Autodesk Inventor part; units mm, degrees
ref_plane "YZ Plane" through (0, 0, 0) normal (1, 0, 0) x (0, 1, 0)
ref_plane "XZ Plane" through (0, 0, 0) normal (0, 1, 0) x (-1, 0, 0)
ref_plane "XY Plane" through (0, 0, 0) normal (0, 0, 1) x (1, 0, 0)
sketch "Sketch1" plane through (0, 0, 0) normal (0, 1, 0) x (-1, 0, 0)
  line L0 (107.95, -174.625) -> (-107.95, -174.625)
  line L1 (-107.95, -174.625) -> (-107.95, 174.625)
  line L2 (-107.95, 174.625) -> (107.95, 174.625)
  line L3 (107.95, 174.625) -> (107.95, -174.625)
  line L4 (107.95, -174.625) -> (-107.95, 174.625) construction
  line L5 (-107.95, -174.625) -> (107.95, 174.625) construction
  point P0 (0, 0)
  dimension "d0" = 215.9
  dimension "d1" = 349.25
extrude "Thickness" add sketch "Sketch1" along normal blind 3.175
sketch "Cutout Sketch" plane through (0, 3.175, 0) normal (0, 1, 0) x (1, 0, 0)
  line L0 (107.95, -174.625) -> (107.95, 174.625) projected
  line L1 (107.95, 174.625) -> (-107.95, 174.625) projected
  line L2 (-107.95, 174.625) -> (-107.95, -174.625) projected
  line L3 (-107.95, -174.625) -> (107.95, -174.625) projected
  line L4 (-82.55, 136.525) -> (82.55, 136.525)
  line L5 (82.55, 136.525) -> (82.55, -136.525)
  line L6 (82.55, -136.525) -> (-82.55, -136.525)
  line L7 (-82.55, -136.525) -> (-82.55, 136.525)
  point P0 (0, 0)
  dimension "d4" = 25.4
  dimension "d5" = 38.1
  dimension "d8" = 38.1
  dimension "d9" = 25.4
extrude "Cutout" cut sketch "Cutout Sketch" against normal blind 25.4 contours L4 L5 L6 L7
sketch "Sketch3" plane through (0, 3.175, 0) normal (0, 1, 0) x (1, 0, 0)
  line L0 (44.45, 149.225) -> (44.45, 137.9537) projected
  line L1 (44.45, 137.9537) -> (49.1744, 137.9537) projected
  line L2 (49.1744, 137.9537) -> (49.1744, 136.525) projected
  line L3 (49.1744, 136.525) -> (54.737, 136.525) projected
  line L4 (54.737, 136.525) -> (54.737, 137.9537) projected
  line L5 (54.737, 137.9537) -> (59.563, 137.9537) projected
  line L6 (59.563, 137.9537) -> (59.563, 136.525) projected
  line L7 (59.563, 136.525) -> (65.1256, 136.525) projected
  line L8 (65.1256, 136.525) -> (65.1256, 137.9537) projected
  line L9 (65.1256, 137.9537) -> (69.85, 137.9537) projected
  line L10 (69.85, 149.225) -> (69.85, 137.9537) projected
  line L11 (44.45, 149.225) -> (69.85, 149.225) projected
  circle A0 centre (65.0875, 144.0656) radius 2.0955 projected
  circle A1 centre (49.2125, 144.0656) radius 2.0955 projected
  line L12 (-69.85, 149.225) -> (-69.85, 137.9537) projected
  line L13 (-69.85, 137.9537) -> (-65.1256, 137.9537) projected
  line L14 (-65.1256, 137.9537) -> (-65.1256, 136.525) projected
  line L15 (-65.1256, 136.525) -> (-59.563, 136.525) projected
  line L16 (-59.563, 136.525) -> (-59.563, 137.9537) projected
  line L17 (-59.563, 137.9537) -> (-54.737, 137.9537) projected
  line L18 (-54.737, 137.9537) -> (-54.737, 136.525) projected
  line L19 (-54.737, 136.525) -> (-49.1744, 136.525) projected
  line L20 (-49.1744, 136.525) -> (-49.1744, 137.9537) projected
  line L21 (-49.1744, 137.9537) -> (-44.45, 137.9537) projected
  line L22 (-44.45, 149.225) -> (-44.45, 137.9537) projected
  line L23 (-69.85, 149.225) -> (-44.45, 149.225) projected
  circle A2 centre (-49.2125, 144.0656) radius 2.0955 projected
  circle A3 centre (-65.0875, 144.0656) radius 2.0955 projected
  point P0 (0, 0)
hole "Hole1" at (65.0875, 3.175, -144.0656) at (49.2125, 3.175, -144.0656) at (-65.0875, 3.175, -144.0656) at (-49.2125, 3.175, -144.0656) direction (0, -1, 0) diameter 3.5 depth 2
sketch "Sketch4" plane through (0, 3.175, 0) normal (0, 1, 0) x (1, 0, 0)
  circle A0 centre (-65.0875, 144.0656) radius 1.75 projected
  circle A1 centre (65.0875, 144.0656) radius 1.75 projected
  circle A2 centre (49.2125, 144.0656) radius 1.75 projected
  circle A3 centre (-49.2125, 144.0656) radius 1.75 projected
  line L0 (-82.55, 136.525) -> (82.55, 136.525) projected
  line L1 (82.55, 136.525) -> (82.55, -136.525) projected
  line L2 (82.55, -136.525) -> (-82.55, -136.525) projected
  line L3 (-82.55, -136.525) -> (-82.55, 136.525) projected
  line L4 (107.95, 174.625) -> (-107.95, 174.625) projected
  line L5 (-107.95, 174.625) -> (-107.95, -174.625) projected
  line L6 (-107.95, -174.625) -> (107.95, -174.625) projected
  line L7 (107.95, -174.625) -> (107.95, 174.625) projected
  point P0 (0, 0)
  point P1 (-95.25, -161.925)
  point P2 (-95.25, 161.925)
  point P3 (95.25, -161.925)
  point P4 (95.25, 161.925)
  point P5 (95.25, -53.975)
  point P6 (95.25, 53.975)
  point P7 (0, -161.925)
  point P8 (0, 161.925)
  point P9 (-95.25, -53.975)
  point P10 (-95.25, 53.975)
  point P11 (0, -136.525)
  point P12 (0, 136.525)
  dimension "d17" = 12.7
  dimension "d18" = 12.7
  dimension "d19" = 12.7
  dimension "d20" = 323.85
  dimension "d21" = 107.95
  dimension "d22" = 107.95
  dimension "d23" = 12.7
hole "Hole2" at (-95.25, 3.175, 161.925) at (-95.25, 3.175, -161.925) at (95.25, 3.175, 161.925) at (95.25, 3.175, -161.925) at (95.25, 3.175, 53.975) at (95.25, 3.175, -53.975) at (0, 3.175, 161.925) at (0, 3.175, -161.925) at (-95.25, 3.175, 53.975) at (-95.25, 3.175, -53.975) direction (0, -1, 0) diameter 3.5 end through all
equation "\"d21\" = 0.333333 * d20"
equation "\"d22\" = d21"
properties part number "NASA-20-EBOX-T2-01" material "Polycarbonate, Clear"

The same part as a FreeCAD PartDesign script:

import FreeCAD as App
import Part
import Sketcher
Q = App.Units.Quantity


def add_polygon(sketch, points):
    """Adds a closed chain of lines whose ends are joined by coincident constraints."""
    first, n = sketch.GeometryCount, len(points)
    for a, b in zip(points, points[1:] + points[:1]):
        sketch.addGeometry(Part.LineSegment(App.Vector(*a, 0), App.Vector(*b, 0)), False)
    for i in range(n):
        sketch.addConstraint(Sketcher.Constraint("Coincident", first + i, 2, first + (i + 1) % n, 1))

doc = App.newDocument("Part")
params = doc.addObject("Spreadsheet::Sheet", "Params")
for row, (alias, value) in enumerate([
    ("sketch1_width", "8.5 in"),
    ("sketch1_height", "13.75 in"),
    ("pad1_length", "0.125 in"),
    ("sketch2_width", "6.5 in"),
    ("sketch2_height", "10.75 in"),
    ("pocket1_length", "1 in"),
    ("hole_diameter", "0.1377953 in"),
    ("hole_depth", "2 mm"),
    ("hole2_diameter", "0.1377953 in"),
], start=1):
    params.set(f"A{row}", alias)
    params.set(f"B{row}", "=" + value)
    params.setAlias(f"B{row}", alias)

body = doc.addObject("PartDesign::Body", "Body")

# Sketch on XZ plane
sketch1 = doc.addObject("Sketcher::SketchObject", "Sketch")
body.addObject(sketch1)
sketch1.AttachmentSupport = (doc.XZ_Plane, [""])
sketch1.MapMode = "FlatFace"
add_polygon(sketch1, [(108, -175), (-108, -175), (-108, 175), (108, 175)])  # lines 0-3
sketch1.addConstraint([
    Sketcher.Constraint("Horizontal", 0),
    Sketcher.Constraint("Vertical", 1),
    Sketcher.Constraint("Horizontal", 2),
    Sketcher.Constraint("Vertical", 3),
    Sketcher.Constraint("Symmetric", 0, 2, 2, 2, -1, 1),
    Sketcher.Constraint("DistanceX", 0, 2, 0, 1, Q("8.5 in")),
    Sketcher.Constraint("DistanceY", 1, 1, 1, 2, Q("13.75 in")),
])
sketch1.setExpression("Constraints[9]", "Params.sketch1_width")
sketch1.setExpression("Constraints[10]", "Params.sketch1_height")
pad1 = doc.addObject("PartDesign::Pad", "Pad")
body.addObject(pad1)
pad1.Profile = sketch1
pad1.setExpression("Length", "Params.pad1_length")
pad1.Reversed = True

# Sketch on XZ plane
sketch2 = doc.addObject("Sketcher::SketchObject", "Sketch001")
body.addObject(sketch2)
sketch2.AttachmentSupport = (doc.XZ_Plane, [""])
sketch2.MapMode = "FlatFace"
sketch2.AttachmentOffset = App.Placement(App.Vector(0, 0, -0.125 * 25.4), App.Rotation())
add_polygon(sketch2, [(83, -137), (-83, -137), (-83, 137), (83, 137)])  # lines 0-3
sketch2.addConstraint([
    Sketcher.Constraint("Horizontal", 0),
    Sketcher.Constraint("Vertical", 1),
    Sketcher.Constraint("Horizontal", 2),
    Sketcher.Constraint("Vertical", 3),
    Sketcher.Constraint("Symmetric", 0, 2, 2, 2, -1, 1),
    Sketcher.Constraint("DistanceX", 0, 2, 0, 1, Q("6.5 in")),
    Sketcher.Constraint("DistanceY", 1, 1, 1, 2, Q("10.75 in")),
])
sketch2.setExpression("Constraints[9]", "Params.sketch2_width")
sketch2.setExpression("Constraints[10]", "Params.sketch2_height")
pocket1 = doc.addObject("PartDesign::Pocket", "Pocket")
body.addObject(pocket1)
pocket1.Profile = sketch2
pocket1.setExpression("Length", "Params.pocket1_length")
pocket1.Reversed = True

# Sketch on XZ plane
sketch3 = doc.addObject("Sketcher::SketchObject", "Sketch002")
body.addObject(sketch3)
sketch3.AttachmentSupport = (doc.XZ_Plane, [""])
sketch3.MapMode = "FlatFace"
sketch3.AttachmentOffset = App.Placement(App.Vector(0, 0, -0.125 * 25.4), App.Rotation())
sketch3.addGeometry([
    Part.Circle(App.Vector(65.1, -144.1, 0), App.Vector(0, 0, 1), 1.8),
    Part.Circle(App.Vector(49.2, -144.1, 0), App.Vector(0, 0, 1), 1.8),
    Part.Circle(App.Vector(-65.1, -144.1, 0), App.Vector(0, 0, 1), 1.8),
    Part.Circle(App.Vector(-49.2, -144.1, 0), App.Vector(0, 0, 1), 1.8),
], False)
sketch3.addConstraint([
    Sketcher.Constraint("Equal", 0, 1),
    Sketcher.Constraint("Equal", 1, 2),
    Sketcher.Constraint("Equal", 2, 3),
    Sketcher.Constraint("Symmetric", 0, 3, 2, 3, -2),
    Sketcher.Constraint("Symmetric", 1, 3, 3, 3, -2),
    Sketcher.Constraint("Horizontal", 0, 3, 1, 3),
    Sketcher.Constraint("Diameter", 0, Q("0.1378 in")),
    Sketcher.Constraint("DistanceX", 2, 3, 1, 3, Q("4.5 in")),
    Sketcher.Constraint("DistanceX", -1, 1, 0, 3, Q("2.5625 in")),
    Sketcher.Constraint("DistanceY", 0, 3, -1, 1, Q("5.671874 in")),
])
doc.recompute()
hole = doc.addObject("PartDesign::Hole", "Hole")
body.addObject(hole)
hole.Profile = sketch3
hole.ThreadType = "None"
hole.setExpression("Diameter", "Params.hole_diameter")
hole.DepthType = "Dimension"
hole.setExpression("Depth", "Params.hole_depth")
hole.DrillPoint = "Flat"
hole.Reversed = True

# Sketch on XZ plane
sketch4 = doc.addObject("Sketcher::SketchObject", "Sketch003")
body.addObject(sketch4)
sketch4.AttachmentSupport = (doc.XZ_Plane, [""])
sketch4.MapMode = "FlatFace"
sketch4.AttachmentOffset = App.Placement(App.Vector(0, 0, -0.125 * 25.4), App.Rotation())
sketch4.addGeometry([
    Part.Circle(App.Vector(-95.2, 161.9, 0), App.Vector(0, 0, 1), 1.8),  # 0
    Part.Circle(App.Vector(-95.2, -161.9, 0), App.Vector(0, 0, 1), 1.8),  # 1
    Part.Circle(App.Vector(95.2, 161.9, 0), App.Vector(0, 0, 1), 1.8),  # 2
    Part.Circle(App.Vector(95.2, -161.9, 0), App.Vector(0, 0, 1), 1.8),  # 3
    Part.Circle(App.Vector(95.2, 54, 0), App.Vector(0, 0, 1), 1.8),  # 4
    Part.Circle(App.Vector(95.2, -54, 0), App.Vector(0, 0, 1), 1.8),  # 5
    Part.Circle(App.Vector(0, 161.9, 0), App.Vector(0, 0, 1), 1.8),  # 6
    Part.Circle(App.Vector(0, -161.9, 0), App.Vector(0, 0, 1), 1.8),  # 7
    Part.Circle(App.Vector(-95.2, 54, 0), App.Vector(0, 0, 1), 1.8),  # 8
    Part.Circle(App.Vector(-95.2, -54, 0), App.Vector(0, 0, 1), 1.8),  # 9
], False)
sketch4.addConstraint([
    Sketcher.Constraint("Equal", 0, 1),
    Sketcher.Constraint("Equal", 1, 2),
    Sketcher.Constraint("Equal", 2, 3),
    Sketcher.Constraint("Equal", 3, 4),
    Sketcher.Constraint("Equal", 4, 5),
    Sketcher.Constraint("Equal", 5, 6),
    Sketcher.Constraint("Equal", 6, 7),
    Sketcher.Constraint("Equal", 7, 8),
    Sketcher.Constraint("Equal", 8, 9),
    Sketcher.Constraint("Symmetric", 1, 3, 2, 3, -1, 1),
    Sketcher.Constraint("Symmetric", 0, 3, 3, 3, -1, 1),
    Sketcher.Constraint("Symmetric", 6, 3, 7, 3, -1, 1),
    Sketcher.Constraint("Symmetric", 5, 3, 8, 3, -1, 1),
    Sketcher.Constraint("Symmetric", 4, 3, 9, 3, -1, 1),
    Sketcher.Constraint("Symmetric", 0, 3, 2, 3, -2),
    Sketcher.Constraint("Symmetric", 4, 3, 8, 3, -2),
    Sketcher.Constraint("PointOnObject", 6, 3, -2),
    Sketcher.Constraint("Horizontal", 2, 3, 6, 3),
    Sketcher.Constraint("Vertical", 3, 3, 4, 3),
    Sketcher.Constraint("Diameter", 0, Q("0.1378 in")),
    Sketcher.Constraint("DistanceX", 0, 3, 2, 3, Q("7.5 in")),
    Sketcher.Constraint("DistanceY", 3, 3, 4, 3, Q("8.5 in")),
    Sketcher.Constraint("DistanceY", 1, 3, 0, 3, Q("12.75 in")),
])
doc.recompute()
hole2 = doc.addObject("PartDesign::Hole", "Hole001")
body.addObject(hole2)
hole2.Profile = sketch4
hole2.ThreadType = "None"
hole2.setExpression("Diameter", "Params.hole2_diameter")
hole2.DepthType = "ThroughAll"
hole2.Reversed = True

doc.recompute()
